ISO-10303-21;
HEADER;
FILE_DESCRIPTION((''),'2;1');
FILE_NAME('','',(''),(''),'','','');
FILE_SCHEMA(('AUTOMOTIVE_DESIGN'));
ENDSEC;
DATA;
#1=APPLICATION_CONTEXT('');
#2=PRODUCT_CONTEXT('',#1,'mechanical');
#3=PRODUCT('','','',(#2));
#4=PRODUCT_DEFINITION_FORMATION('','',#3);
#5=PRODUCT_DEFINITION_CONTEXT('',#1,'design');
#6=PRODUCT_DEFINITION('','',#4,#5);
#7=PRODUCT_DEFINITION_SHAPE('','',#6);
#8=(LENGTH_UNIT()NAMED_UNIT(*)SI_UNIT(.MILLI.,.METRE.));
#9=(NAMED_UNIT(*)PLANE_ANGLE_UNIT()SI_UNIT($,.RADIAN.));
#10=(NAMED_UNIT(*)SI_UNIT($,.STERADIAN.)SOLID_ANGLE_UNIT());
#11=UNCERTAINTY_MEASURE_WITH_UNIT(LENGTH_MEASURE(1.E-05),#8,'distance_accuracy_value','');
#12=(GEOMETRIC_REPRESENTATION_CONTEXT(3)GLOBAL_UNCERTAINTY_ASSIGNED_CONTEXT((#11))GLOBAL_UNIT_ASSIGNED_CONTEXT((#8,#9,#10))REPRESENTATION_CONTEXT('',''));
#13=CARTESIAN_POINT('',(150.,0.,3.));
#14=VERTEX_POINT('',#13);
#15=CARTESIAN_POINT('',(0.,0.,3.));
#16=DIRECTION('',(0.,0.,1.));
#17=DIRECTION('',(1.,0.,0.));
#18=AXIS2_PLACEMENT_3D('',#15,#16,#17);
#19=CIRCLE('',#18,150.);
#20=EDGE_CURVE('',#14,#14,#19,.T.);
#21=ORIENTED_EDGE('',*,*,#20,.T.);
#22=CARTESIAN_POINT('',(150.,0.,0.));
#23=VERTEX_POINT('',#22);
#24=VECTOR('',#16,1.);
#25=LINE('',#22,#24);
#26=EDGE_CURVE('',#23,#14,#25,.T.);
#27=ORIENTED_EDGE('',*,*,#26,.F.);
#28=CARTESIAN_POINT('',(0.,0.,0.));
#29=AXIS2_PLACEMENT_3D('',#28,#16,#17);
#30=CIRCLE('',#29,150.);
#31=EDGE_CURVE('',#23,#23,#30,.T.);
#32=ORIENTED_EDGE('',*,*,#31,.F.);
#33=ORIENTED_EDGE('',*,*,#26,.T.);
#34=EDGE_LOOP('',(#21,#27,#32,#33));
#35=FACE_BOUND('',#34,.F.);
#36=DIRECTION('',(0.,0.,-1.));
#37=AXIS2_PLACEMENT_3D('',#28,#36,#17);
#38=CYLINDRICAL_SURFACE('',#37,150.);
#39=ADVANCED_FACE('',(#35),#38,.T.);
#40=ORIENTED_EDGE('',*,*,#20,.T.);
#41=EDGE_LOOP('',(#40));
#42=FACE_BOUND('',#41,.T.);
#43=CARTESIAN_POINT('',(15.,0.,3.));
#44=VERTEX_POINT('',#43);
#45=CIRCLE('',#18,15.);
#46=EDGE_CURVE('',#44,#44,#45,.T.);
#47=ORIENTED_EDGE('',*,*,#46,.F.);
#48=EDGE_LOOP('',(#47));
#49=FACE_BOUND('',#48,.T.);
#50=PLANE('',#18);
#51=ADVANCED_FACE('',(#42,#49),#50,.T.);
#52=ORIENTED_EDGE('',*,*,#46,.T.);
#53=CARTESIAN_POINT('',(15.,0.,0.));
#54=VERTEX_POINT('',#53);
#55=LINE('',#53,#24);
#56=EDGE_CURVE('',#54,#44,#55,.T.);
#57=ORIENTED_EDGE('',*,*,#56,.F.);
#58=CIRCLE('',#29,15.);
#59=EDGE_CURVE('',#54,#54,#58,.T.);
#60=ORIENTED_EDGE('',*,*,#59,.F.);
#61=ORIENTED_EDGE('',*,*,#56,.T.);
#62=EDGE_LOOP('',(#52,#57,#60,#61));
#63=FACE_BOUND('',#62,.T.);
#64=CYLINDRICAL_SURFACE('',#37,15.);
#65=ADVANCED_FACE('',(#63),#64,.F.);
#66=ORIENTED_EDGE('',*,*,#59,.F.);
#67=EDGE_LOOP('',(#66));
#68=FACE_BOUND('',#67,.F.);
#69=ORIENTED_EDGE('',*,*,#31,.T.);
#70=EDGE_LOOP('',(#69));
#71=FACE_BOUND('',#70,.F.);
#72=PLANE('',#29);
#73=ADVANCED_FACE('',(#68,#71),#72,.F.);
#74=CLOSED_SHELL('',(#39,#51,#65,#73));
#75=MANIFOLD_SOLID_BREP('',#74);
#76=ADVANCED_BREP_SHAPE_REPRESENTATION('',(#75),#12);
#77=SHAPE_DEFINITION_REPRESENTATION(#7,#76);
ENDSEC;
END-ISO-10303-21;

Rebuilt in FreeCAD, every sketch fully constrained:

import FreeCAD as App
import Part
import Sketcher
from FreeCAD import Vector

doc = App.newDocument("Part")
body = doc.addObject("PartDesign::Body", "Body")

# Sketch on XY plane
sketch1 = body.newObject("Sketcher::SketchObject", "Sketch")
sketch1.AttachmentSupport = (doc.getObject("XY_Plane"), [""])
sketch1.MapMode = "FlatFace"
sketch1.addGeometry([
    Part.Circle(Vector(0, 0, 0), Vector(0, 0, 1), 150),
    Part.Circle(Vector(0, 0, 0), Vector(0, 0, 1), 15),
], False)
sketch1.addConstraint([
    Sketcher.Constraint("Coincident", 0, 3, -1, 1),
    Sketcher.Constraint("Coincident", 1, 3, -1, 1),
    Sketcher.Constraint("Diameter", 0, 300.0),
    Sketcher.Constraint("Diameter", 1, 30.0),
])
pad1 = body.newObject("PartDesign::Pad", "Pad")
pad1.Profile = sketch1
pad1.Length = 3

doc.recompute()
